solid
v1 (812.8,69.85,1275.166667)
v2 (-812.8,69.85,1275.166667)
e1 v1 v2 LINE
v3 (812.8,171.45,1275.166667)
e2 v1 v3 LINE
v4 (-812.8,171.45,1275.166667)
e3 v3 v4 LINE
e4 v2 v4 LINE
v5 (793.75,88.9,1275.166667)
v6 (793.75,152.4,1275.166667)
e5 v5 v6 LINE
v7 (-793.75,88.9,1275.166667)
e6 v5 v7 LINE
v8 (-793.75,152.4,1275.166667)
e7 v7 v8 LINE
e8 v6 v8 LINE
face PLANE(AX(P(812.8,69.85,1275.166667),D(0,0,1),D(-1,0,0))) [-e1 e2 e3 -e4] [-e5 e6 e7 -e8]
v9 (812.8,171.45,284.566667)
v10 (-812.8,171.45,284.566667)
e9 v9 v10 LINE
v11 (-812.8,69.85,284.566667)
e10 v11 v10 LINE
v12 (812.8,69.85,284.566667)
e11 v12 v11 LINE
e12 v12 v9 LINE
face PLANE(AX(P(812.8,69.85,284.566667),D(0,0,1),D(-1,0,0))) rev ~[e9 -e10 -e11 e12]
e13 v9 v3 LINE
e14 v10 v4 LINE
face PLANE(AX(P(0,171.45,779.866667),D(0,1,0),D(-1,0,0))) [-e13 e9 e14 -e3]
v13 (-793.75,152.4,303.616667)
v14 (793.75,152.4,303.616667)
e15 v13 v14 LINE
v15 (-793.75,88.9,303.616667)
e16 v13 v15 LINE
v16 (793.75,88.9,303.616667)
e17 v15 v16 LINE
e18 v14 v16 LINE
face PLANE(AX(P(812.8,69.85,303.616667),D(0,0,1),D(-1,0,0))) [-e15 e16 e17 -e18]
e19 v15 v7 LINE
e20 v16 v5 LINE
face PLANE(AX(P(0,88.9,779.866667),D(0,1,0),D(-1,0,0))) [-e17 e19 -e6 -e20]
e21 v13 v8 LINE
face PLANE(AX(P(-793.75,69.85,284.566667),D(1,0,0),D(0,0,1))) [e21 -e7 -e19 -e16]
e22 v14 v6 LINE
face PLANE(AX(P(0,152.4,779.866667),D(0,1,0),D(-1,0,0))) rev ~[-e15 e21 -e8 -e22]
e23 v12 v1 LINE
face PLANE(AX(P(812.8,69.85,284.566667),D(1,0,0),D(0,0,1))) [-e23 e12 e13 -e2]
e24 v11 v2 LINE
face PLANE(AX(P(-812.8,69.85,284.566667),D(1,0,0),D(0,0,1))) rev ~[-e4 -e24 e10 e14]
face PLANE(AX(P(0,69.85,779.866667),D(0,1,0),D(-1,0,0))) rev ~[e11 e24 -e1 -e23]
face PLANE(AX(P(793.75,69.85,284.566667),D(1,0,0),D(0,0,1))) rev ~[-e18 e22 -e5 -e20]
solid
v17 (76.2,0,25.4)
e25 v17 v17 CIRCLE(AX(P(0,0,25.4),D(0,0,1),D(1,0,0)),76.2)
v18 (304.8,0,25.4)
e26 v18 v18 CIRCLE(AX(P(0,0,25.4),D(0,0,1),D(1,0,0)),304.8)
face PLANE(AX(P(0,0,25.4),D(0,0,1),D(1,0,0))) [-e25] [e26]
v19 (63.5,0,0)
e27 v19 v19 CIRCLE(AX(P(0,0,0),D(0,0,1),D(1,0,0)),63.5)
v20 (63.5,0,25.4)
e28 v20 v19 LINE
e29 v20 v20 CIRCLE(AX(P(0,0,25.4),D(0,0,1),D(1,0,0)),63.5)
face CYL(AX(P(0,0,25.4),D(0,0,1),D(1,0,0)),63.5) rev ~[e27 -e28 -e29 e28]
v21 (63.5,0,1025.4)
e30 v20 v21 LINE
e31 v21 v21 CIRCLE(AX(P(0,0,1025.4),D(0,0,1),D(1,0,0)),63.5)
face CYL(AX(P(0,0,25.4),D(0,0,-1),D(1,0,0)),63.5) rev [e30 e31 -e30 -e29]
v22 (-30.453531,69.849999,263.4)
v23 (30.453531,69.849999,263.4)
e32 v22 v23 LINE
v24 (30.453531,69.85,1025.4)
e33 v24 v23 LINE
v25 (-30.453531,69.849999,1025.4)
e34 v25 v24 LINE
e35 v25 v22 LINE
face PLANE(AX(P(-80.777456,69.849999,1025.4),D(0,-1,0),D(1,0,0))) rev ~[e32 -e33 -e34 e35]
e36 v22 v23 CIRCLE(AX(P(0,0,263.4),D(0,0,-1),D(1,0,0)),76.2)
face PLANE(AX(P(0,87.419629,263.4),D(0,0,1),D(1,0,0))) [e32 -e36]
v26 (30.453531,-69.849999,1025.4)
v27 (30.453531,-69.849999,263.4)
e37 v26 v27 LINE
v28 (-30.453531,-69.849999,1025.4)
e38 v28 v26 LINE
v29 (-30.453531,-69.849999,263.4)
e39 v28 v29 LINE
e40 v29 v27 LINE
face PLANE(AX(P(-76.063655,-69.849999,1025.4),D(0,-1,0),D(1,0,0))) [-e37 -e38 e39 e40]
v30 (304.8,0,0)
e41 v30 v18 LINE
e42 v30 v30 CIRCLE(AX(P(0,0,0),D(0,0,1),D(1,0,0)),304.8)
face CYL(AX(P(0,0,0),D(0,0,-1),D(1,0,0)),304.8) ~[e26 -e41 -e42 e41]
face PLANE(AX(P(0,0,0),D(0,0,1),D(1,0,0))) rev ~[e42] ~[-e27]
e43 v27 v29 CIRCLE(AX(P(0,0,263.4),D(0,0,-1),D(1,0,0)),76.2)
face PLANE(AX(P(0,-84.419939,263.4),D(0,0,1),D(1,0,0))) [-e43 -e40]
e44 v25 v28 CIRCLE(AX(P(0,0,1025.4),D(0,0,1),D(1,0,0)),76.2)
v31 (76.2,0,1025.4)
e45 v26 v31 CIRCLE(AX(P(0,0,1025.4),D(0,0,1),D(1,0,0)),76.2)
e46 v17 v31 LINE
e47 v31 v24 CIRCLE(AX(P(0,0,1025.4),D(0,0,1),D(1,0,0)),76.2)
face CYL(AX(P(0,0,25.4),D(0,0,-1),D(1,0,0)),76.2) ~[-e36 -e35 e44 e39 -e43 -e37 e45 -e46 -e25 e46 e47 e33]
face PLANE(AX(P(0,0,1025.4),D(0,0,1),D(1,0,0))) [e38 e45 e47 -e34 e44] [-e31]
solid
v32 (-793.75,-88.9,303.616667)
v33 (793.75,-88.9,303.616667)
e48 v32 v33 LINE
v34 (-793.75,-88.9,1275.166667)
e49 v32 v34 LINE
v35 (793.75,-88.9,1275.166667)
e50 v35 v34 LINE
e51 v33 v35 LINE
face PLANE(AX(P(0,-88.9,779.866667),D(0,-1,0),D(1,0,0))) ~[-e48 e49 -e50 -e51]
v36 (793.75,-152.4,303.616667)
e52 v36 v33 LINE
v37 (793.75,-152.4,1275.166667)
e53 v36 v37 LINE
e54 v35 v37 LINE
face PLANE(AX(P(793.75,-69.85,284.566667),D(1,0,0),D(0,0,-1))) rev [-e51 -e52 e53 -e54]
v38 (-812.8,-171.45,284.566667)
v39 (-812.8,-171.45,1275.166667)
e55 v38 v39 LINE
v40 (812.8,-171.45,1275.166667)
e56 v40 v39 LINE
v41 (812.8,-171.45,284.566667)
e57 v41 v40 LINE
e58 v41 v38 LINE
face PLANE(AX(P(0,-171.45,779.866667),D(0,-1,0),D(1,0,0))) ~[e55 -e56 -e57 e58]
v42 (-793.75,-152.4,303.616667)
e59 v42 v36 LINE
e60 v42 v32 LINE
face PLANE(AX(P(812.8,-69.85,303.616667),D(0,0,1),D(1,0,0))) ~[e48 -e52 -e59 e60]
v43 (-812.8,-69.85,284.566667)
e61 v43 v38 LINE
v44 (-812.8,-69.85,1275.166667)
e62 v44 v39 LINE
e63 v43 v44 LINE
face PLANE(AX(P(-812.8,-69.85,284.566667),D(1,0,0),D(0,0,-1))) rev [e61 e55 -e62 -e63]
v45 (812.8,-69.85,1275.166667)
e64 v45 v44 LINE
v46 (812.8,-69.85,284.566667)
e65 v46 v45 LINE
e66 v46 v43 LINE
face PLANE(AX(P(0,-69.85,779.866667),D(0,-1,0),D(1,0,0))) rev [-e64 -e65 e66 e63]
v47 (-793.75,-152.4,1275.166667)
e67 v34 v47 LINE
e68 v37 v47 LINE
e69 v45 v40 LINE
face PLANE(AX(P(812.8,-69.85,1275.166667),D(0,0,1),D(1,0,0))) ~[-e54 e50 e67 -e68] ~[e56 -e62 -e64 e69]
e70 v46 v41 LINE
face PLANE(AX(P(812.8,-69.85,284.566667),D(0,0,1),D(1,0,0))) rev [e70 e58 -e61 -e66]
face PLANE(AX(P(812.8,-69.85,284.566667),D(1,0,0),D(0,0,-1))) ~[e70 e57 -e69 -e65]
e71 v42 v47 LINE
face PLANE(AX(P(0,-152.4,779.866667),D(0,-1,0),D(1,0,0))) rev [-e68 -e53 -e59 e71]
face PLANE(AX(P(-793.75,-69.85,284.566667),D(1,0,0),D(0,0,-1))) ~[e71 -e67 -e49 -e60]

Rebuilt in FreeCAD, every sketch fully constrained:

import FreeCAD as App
import Part
import Sketcher
from FreeCAD import Vector
Q = App.Units.Quantity


def faces_at(feature, points):
    """Names of the faces that lie closest to the given points."""
    faces = feature.Shape.Faces
    near = lambda p: min(range(len(faces)), key=lambda i: faces[i].distToShape(Part.Vertex(*p))[0])
    return sorted({f"Face{near(p) + 1}" for p in points})


def add_polygon(sketch, points):
    """Adds a closed chain of lines whose ends are joined by coincident constraints."""
    first, n = sketch.GeometryCount, len(points)
    for a, b in zip(points, points[1:] + points[:1]):
        sketch.addGeometry(Part.LineSegment(App.Vector(*a, 0), App.Vector(*b, 0)), False)
    for i in range(n):
        sketch.addConstraint(Sketcher.Constraint("Coincident", first + i, 2, first + (i + 1) % n, 1))

doc = App.newDocument("Part")
body = doc.addObject("PartDesign::Body", "Body")

# Sketch on XY plane
sketch1 = body.newObject("Sketcher::SketchObject", "Sketch")
sketch1.AttachmentSupport = (doc.getObject("XY_Plane"), [""])
sketch1.MapMode = "FlatFace"
sketch1.addGeometry(Part.Circle(Vector(0, 0, 0), Vector(0, 0, 1), 305), False)
sketch1.addConstraint([
    Sketcher.Constraint("Coincident", 0, 3, -1, 1),
    Sketcher.Constraint("Diameter", 0, Q("24 in")),
])
pad1 = body.newObject("PartDesign::Pad", "Pad")
pad1.Profile = sketch1
pad1.Length = Q("1 in")

# Sketch on XY plane
sketch2 = body.newObject("Sketcher::SketchObject", "Sketch001")
sketch2.AttachmentSupport = (doc.getObject("XY_Plane"), [""])
sketch2.MapMode = "FlatFace"
sketch2.AttachmentOffset = App.Placement(Vector(0, 0, 1 * 25.4), App.Rotation())
sketch2.addGeometry([
    Part.Circle(Vector(0, 0, 0), Vector(0, 0, 1), 76),
    Part.Circle(Vector(0, 0, 0), Vector(0, 0, 1), 64),
], False)
sketch2.addConstraint([
    Sketcher.Constraint("Coincident", 0, 3, -1, 1),
    Sketcher.Constraint("Coincident", 1, 3, -1, 1),
    Sketcher.Constraint("Diameter", 0, Q("6 in")),
    Sketcher.Constraint("Diameter", 1, Q("5 in")),
])
pad2 = body.newObject("PartDesign::Pad", "Pad001")
pad2.Profile = sketch2
pad2.Length = 1000

# Sketch on XY plane
sketch3 = body.newObject("Sketcher::SketchObject", "Sketch002")
sketch3.AttachmentSupport = (doc.getObject("XY_Plane"), [""])
sketch3.MapMode = "FlatFace"
sketch3.AttachmentOffset = App.Placement(Vector(0, 0, 1 * 25.4), App.Rotation())
sketch3.addGeometry(Part.Circle(Vector(0, 0, 0), Vector(0, 0, 1), 64), False)
sketch3.addConstraint([
    Sketcher.Constraint("Coincident", 0, 3, -1, 1),
    Sketcher.Constraint("Diameter", 0, Q("5 in")),
])
pocket1 = body.newObject("PartDesign::Pocket", "Pocket")
pocket1.Profile = sketch3
pocket1.Length = Q("1 in")

# Sketch on XY plane
sketch4 = body.newObject("Sketcher::SketchObject", "Sketch003")
sketch4.AttachmentSupport = (doc.getObject("XY_Plane"), [""])
sketch4.MapMode = "FlatFace"
sketch4.AttachmentOffset = App.Placement(Vector(0, 0, 1025.4), App.Rotation())
add_polygon(sketch4, [(-76, -70), (-76, -99), (76, -99), (76, -70)])  # lines 0-3
add_polygon(sketch4, [(-81, 105), (-81, 70), (81, 70), (81, 105)])  # lines 4-7
sketch4.addConstraint([
    Sketcher.Constraint("Vertical", 0),
    Sketcher.Constraint("Horizontal", 1),
    Sketcher.Constraint("Vertical", 2),
    Sketcher.Constraint("Horizontal", 3),
    Sketcher.Constraint("Vertical", 4),
    Sketcher.Constraint("Horizontal", 5),
    Sketcher.Constraint("Vertical", 6),
    Sketcher.Constraint("Horizontal", 7),
    Sketcher.Constraint("DistanceY", 3, 2, 4, 2, Q("5.5 in")),
    Sketcher.Constraint("DistanceY", 2, 2, -1, 1, Q("2.75 in")),
    Sketcher.Constraint("DistanceX", 1, 1, 1, 2, 152.12731),
    Sketcher.Constraint("DistanceX", 5, 1, 5, 2, 161.554912),
    Sketcher.Constraint("DistanceY", 0, 2, 0, 1, 29.139879),
    Sketcher.Constraint("DistanceY", 4, 2, 4, 1, 35.139259),
    Sketcher.Constraint("DistanceX", 4, 2, 3, 2, 4.713801),
    Sketcher.Constraint("DistanceX", 0, 2, -1, 1, 76.063655),
])
pocket2 = body.newObject("PartDesign::Pocket", "Pocket001")
pocket2.Profile = sketch4
pocket2.Length = Q("30 in")
body2 = doc.addObject("PartDesign::Body", "Body001")

# Sketch on XZ plane
sketch5 = body2.newObject("Sketcher::SketchObject", "Sketch004")
sketch5.AttachmentSupport = (doc.getObject("XZ_Plane001"), [""])
sketch5.MapMode = "FlatFace"
sketch5.AttachmentOffset = App.Placement(Vector(0, 0, -2.75 * 25.4), App.Rotation())
add_polygon(sketch5, [(813, 1275), (813, 285), (-813, 285), (-813, 1275)])  # lines 0-3
sketch5.addConstraint([
    Sketcher.Constraint("Vertical", 0),
    Sketcher.Constraint("Horizontal", 1),
    Sketcher.Constraint("Vertical", 2),
    Sketcher.Constraint("Horizontal", 3),
    Sketcher.Constraint("DistanceX", 1, 2, 1, 1, Q("64 in")),
    Sketcher.Constraint("DistanceY", 0, 2, 0, 1, Q("39 in")),
    Sketcher.Constraint("DistanceX", -1, 1, 0, 2, Q("32 in")),
    Sketcher.Constraint("DistanceY", -1, 1, 0, 2, 284.566667),
])
pad3 = body2.newObject("PartDesign::Pad", "Pad002")
pad3.Profile = sketch5
pad3.Length = Q("4 in")
pad3.Reversed = True
doc.recompute()

thickness = body2.newObject("PartDesign::Thickness", "Thickness")
thickness.Base = (pad3, faces_at(pad3, [(0, 120.65, 1275.167)]))
thickness.Value = Q("0.75 in")
thickness.Reversed = True
thickness.Join = "Arc"
body3 = doc.addObject("PartDesign::Body", "Body002")
doc.recompute()

mirroring = doc.addObject("Part::Mirroring", "Mirroring")
mirroring.Source = body2
mirroring.Base = Vector(0, 0, 0)
mirroring.Normal = Vector(0, -1, 0)
body3.BaseFeature = mirroring
doc.recompute()
mirroring.Visibility = False

doc.recompute()
